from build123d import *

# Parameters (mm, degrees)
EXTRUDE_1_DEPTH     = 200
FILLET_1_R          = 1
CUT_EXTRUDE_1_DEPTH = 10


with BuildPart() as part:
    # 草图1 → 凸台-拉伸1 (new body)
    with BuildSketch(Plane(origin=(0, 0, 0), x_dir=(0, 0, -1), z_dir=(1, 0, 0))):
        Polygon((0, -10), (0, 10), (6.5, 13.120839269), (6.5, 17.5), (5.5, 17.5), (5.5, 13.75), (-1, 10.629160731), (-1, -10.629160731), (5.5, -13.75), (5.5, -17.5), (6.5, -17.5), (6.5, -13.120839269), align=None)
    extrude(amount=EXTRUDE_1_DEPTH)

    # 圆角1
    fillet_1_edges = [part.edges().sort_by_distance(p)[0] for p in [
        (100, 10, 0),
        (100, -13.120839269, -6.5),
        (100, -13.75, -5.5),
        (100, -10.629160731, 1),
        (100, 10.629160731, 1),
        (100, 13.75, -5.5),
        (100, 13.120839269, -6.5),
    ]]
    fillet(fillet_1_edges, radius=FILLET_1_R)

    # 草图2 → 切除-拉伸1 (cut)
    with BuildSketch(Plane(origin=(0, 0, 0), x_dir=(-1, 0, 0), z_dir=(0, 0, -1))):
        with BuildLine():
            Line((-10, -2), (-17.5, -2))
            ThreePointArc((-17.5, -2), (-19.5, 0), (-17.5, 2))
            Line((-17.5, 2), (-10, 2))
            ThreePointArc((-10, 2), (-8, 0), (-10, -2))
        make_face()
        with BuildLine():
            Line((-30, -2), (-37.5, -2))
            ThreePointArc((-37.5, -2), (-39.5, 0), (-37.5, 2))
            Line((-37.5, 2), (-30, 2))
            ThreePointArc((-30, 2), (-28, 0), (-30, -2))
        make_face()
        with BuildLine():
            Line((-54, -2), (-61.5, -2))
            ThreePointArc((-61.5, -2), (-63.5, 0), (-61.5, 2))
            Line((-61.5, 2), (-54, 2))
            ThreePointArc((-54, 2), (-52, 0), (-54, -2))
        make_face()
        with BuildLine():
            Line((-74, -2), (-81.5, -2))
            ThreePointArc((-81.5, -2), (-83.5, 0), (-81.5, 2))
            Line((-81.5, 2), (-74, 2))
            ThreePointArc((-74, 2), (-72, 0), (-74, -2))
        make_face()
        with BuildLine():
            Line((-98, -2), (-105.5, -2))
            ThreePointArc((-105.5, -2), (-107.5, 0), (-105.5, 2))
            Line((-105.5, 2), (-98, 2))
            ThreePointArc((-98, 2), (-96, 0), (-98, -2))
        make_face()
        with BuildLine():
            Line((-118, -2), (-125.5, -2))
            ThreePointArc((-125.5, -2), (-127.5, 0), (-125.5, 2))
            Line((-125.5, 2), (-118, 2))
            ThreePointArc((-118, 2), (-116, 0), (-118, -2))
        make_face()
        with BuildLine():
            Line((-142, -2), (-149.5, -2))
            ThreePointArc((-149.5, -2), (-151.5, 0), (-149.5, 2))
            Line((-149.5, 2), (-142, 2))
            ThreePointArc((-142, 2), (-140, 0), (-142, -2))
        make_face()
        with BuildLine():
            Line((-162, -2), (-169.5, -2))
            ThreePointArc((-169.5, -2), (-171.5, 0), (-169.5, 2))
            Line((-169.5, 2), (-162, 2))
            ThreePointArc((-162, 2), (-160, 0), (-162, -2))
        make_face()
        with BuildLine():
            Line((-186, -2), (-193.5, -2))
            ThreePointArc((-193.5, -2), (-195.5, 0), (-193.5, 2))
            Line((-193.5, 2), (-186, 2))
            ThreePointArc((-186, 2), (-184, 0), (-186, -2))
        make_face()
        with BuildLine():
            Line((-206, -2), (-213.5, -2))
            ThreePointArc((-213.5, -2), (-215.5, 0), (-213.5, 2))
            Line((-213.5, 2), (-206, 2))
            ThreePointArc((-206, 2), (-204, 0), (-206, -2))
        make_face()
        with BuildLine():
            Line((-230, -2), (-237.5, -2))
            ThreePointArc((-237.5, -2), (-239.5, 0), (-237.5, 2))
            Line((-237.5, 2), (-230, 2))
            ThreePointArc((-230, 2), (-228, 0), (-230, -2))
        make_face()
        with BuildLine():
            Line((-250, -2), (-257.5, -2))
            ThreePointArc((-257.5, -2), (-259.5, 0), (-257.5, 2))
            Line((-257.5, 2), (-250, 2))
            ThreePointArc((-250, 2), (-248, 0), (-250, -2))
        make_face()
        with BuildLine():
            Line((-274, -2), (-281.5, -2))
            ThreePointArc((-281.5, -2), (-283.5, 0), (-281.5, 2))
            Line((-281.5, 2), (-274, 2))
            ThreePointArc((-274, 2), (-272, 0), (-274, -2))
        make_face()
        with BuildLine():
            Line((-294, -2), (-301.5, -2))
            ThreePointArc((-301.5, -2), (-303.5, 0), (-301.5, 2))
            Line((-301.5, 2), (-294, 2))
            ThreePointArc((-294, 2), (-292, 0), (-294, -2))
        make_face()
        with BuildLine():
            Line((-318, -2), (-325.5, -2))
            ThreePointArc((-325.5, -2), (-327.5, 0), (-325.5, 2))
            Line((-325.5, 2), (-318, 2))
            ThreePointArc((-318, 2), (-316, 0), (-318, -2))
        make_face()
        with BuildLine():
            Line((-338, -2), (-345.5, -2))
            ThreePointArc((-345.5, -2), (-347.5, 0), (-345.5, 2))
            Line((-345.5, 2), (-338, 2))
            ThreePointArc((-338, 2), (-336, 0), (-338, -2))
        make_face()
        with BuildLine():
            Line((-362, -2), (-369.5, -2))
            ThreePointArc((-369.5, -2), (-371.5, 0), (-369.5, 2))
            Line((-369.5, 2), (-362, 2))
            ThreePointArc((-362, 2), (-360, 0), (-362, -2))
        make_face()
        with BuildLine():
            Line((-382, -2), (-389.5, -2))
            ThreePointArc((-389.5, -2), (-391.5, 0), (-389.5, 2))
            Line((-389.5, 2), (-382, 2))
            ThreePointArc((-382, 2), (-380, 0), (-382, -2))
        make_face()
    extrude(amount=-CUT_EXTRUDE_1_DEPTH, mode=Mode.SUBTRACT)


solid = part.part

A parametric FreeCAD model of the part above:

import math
import FreeCAD as App
import Part
import Sketcher

V = App.Vector
Q = App.Units.Quantity


def edges_at(feature, points):
    """Names of the edges that pass closest to the given points."""
    edges = feature.Shape.Edges
    near = lambda p: min(range(len(edges)), key=lambda i: edges[i].distToShape(Part.Vertex(*p))[0])
    return sorted({f"Edge{near(p) + 1}" for p in points})

doc = App.newDocument("Part")
params = doc.addObject("Spreadsheet::Sheet", "Params")
for row, (alias, value) in enumerate([
    ("sketch1_width", "20 mm"),
    ("sketch1_height", "1 mm"),
    ("sketch1_width2", "3.75 mm"),
    ("pad1_length", "200 mm"),
    ("fillet_radius", "1 mm"),
    ("sketch2_radius", "2 mm"),
    ("sketch2_width", "7.5 mm"),
    ("pocket1_length", "10 mm"),
], start=1):
    params.set(f"A{row}", alias)
    params.set(f"B{row}", "=" + value)
    params.setAlias(f"B{row}", alias)

body = doc.addObject("PartDesign::Body", "Body")

# Sketch on YZ plane
sketch1 = body.newObject("Sketcher::SketchObject", "Sketch")
sketch1.AttachmentSupport = (doc.getObject("YZ_Plane"), [""])
sketch1.MapMode = "FlatFace"
sketch1.addGeometry([
    Part.LineSegment(V(-10, 0, 0), V(10, 0, 0)),  # 0
    Part.LineSegment(V(10, 0, 0), V(13.1, -6.5, 0)),  # 1
    Part.LineSegment(V(13.1, -6.5, 0), V(17.5, -6.5, 0)),  # 2
    Part.LineSegment(V(17.5, -6.5, 0), V(17.5, -5.5, 0)),  # 3
    Part.LineSegment(V(17.5, -5.5, 0), V(13.8, -5.5, 0)),  # 4
    Part.LineSegment(V(13.8, -5.5, 0), V(10.6, 1, 0)),  # 5
    Part.LineSegment(V(10.6, 1, 0), V(-10.6, 1, 0)),  # 6
    Part.LineSegment(V(-10.6, 1, 0), V(-13.8, -5.5, 0)),  # 7
    Part.LineSegment(V(-13.8, -5.5, 0), V(-17.5, -5.5, 0)),  # 8
    Part.LineSegment(V(-17.5, -5.5, 0), V(-17.5, -6.5, 0)),  # 9
    Part.LineSegment(V(-17.5, -6.5, 0), V(-13.1, -6.5, 0)),  # 10
    Part.LineSegment(V(-13.1, -6.5, 0), V(-10, 0, 0)),  # 11
], False)
sketch1.addConstraint([
    Sketcher.Constraint("Coincident", 0, 2, 1, 1),
    Sketcher.Constraint("Coincident", 1, 2, 2, 1),
    Sketcher.Constraint("Coincident", 2, 2, 3, 1),
    Sketcher.Constraint("Coincident", 3, 2, 4, 1),
    Sketcher.Constraint("Coincident", 4, 2, 5, 1),
    Sketcher.Constraint("Coincident", 5, 2, 6, 1),
    Sketcher.Constraint("Coincident", 6, 2, 7, 1),
    Sketcher.Constraint("Coincident", 7, 2, 8, 1),
    Sketcher.Constraint("Coincident", 8, 2, 9, 1),
    Sketcher.Constraint("Coincident", 9, 2, 10, 1),
    Sketcher.Constraint("Coincident", 10, 2, 11, 1),
    Sketcher.Constraint("Coincident", 11, 2, 0, 1),
    Sketcher.Constraint("Horizontal", 0),
    Sketcher.Constraint("Horizontal", 2),
    Sketcher.Constraint("Vertical", 3),
    Sketcher.Constraint("Horizontal", 4),
    Sketcher.Constraint("Horizontal", 6),
    Sketcher.Constraint("Horizontal", 8),
    Sketcher.Constraint("Vertical", 9),
    Sketcher.Constraint("Horizontal", 10),
    Sketcher.Constraint("Symmetric", 0, 2, 11, 2, -1, 1),
    Sketcher.Constraint("Symmetric", 4, 2, 7, 2, -2),
    Sketcher.Constraint("Symmetric", 2, 2, 9, 2, -2),
    Sketcher.Constraint("Parallel", 1, 5),
    Sketcher.Constraint("Parallel", 7, 11),
    Sketcher.Constraint("Equal", 2, 10),
    Sketcher.Constraint("Equal", 1, 5),
    Sketcher.Constraint("DistanceX", 0, 1, 0, 2, Q("20 mm")),
    Sketcher.Constraint("DistanceY", 3, 1, 3, 2, Q("1 mm")),
    Sketcher.Constraint("DistanceX", 4, 2, 4, 1, Q("3.75 mm")),
    Sketcher.Constraint("DistanceY", 1, 2, -1, 1, Q("6.5 mm")),
    Sketcher.Constraint("DistanceX", -1, 1, 2, 2, Q("17.5 mm")),
    Sketcher.Constraint("DistanceX", 2, 1, 2, 2, Q("4.379161 mm")),
])
sketch1.setExpression("Constraints[27]", "Params.sketch1_width")
sketch1.setExpression("Constraints[28]", "Params.sketch1_height")
sketch1.setExpression("Constraints[29]", "Params.sketch1_width2")
pad1 = body.newObject("PartDesign::Pad", "Pad")
pad1.Profile = sketch1
pad1.setExpression("Length", "Params.pad1_length")
doc.recompute()

fillet = body.newObject("PartDesign::Fillet", "Fillet")
fillet.Base = (pad1, edges_at(pad1, [
    (100, 10, 0),
    (100, -13.121, -6.5),
    (100, -13.75, -5.5),
    (100, -10.629, 1),
    (100, 10.629, 1),
    (100, 13.75, -5.5),
    (100, 13.121, -6.5),
]))
fillet.setExpression("Radius", "Params.fillet_radius")

# Sketch on XY plane
sketch2 = body.newObject("Sketcher::SketchObject", "Sketch001")
sketch2.AttachmentSupport = (doc.getObject("XY_Plane"), [""])
sketch2.MapMode = "FlatFace"
sketch2.addGeometry([
    Part.LineSegment(V(17.5, -2, 0), V(10, -2, 0)),  # 0
    Part.ArcOfCircle(Part.Circle(V(10, 0, 0), V(0, 0, 1), 2), math.radians(90), math.radians(270)),  # 1
    Part.LineSegment(V(10, 2, 0), V(17.5, 2, 0)),  # 2
    Part.ArcOfCircle(Part.Circle(V(17.5, 0, 0), V(0, 0, 1), 2), math.radians(-90), math.radians(90)),  # 3
    Part.LineSegment(V(37.5, -2, 0), V(30, -2, 0)),  # 4
    Part.ArcOfCircle(Part.Circle(V(30, 0, 0), V(0, 0, 1), 2), math.radians(90), math.radians(270)),  # 5
    Part.LineSegment(V(30, 2, 0), V(37.5, 2, 0)),  # 6
    Part.ArcOfCircle(Part.Circle(V(37.5, 0, 0), V(0, 0, 1), 2), math.radians(-90), math.radians(90)),  # 7
    Part.LineSegment(V(61.5, -2, 0), V(54, -2, 0)),  # 8
    Part.ArcOfCircle(Part.Circle(V(54, 0, 0), V(0, 0, 1), 2), math.radians(90), math.radians(270)),  # 9
    Part.LineSegment(V(54, 2, 0), V(61.5, 2, 0)),  # 10
    Part.ArcOfCircle(Part.Circle(V(61.5, 0, 0), V(0, 0, 1), 2), math.radians(-90), math.radians(90)),  # 11
    Part.LineSegment(V(81.5, -2, 0), V(74, -2, 0)),  # 12
    Part.ArcOfCircle(Part.Circle(V(74, 0, 0), V(0, 0, 1), 2), math.radians(90), math.radians(270)),  # 13
    Part.LineSegment(V(74, 2, 0), V(81.5, 2, 0)),  # 14
    Part.ArcOfCircle(Part.Circle(V(81.5, 0, 0), V(0, 0, 1), 2), math.radians(-90), math.radians(90)),  # 15
    Part.LineSegment(V(105.5, -2, 0), V(98, -2, 0)),  # 16
    Part.ArcOfCircle(Part.Circle(V(98, 0, 0), V(0, 0, 1), 2), math.radians(90), math.radians(270)),  # 17
    Part.LineSegment(V(98, 2, 0), V(105.5, 2, 0)),  # 18
    Part.ArcOfCircle(Part.Circle(V(105.5, 0, 0), V(0, 0, 1), 2), math.radians(-90), math.radians(90)),  # 19
    Part.LineSegment(V(125.5, -2, 0), V(118, -2, 0)),  # 20
    Part.ArcOfCircle(Part.Circle(V(118, 0, 0), V(0, 0, 1), 2), math.radians(90), math.radians(270)),  # 21
    Part.LineSegment(V(118, 2, 0), V(125.5, 2, 0)),  # 22
    Part.ArcOfCircle(Part.Circle(V(125.5, 0, 0), V(0, 0, 1), 2), math.radians(-90), math.radians(90)),  # 23
    Part.LineSegment(V(149.5, -2, 0), V(142, -2, 0)),  # 24
    Part.ArcOfCircle(Part.Circle(V(142, 0, 0), V(0, 0, 1), 2), math.radians(90), math.radians(270)),  # 25
    Part.LineSegment(V(142, 2, 0), V(149.5, 2, 0)),  # 26
    Part.ArcOfCircle(Part.Circle(V(149.5, 0, 0), V(0, 0, 1), 2), math.radians(-90), math.radians(90)),  # 27
    Part.LineSegment(V(169.5, -2, 0), V(162, -2, 0)),  # 28
    Part.ArcOfCircle(Part.Circle(V(162, 0, 0), V(0, 0, 1), 2), math.radians(90), math.radians(270)),  # 29
    Part.LineSegment(V(162, 2, 0), V(169.5, 2, 0)),  # 30
    Part.ArcOfCircle(Part.Circle(V(169.5, 0, 0), V(0, 0, 1), 2), math.radians(-90), math.radians(90)),  # 31
    Part.LineSegment(V(193.5, -2, 0), V(186, -2, 0)),  # 32
    Part.ArcOfCircle(Part.Circle(V(186, 0, 0), V(0, 0, 1), 2), math.radians(90), math.radians(270)),  # 33
    Part.LineSegment(V(186, 2, 0), V(193.5, 2, 0)),  # 34
    Part.ArcOfCircle(Part.Circle(V(193.5, 0, 0), V(0, 0, 1), 2), math.radians(-90), math.radians(90)),  # 35
    Part.LineSegment(V(213.5, -2, 0), V(206, -2, 0)),  # 36
    Part.ArcOfCircle(Part.Circle(V(206, 0, 0), V(0, 0, 1), 2), math.radians(90), math.radians(270)),  # 37
    Part.LineSegment(V(206, 2, 0), V(213.5, 2, 0)),  # 38
    Part.ArcOfCircle(Part.Circle(V(213.5, 0, 0), V(0, 0, 1), 2), math.radians(-90), math.radians(90)),  # 39
    Part.LineSegment(V(237.5, -2, 0), V(230, -2, 0)),  # 40
    Part.ArcOfCircle(Part.Circle(V(230, 0, 0), V(0, 0, 1), 2), math.radians(90), math.radians(270)),  # 41
    Part.LineSegment(V(230, 2, 0), V(237.5, 2, 0)),  # 42
    Part.ArcOfCircle(Part.Circle(V(237.5, 0, 0), V(0, 0, 1), 2), math.radians(-90), math.radians(90)),  # 43
    Part.LineSegment(V(257.5, -2, 0), V(250, -2, 0)),  # 44
    Part.ArcOfCircle(Part.Circle(V(250, 0, 0), V(0, 0, 1), 2), math.radians(90), math.radians(270)),  # 45
    Part.LineSegment(V(250, 2, 0), V(257.5, 2, 0)),  # 46
    Part.ArcOfCircle(Part.Circle(V(257.5, 0, 0), V(0, 0, 1), 2), math.radians(-90), math.radians(90)),  # 47
    Part.LineSegment(V(281.5, -2, 0), V(274, -2, 0)),  # 48
    Part.ArcOfCircle(Part.Circle(V(274, 0, 0), V(0, 0, 1), 2), math.radians(90), math.radians(270)),  # 49
    Part.LineSegment(V(274, 2, 0), V(281.5, 2, 0)),  # 50
    Part.ArcOfCircle(Part.Circle(V(281.5, 0, 0), V(0, 0, 1), 2), math.radians(-90), math.radians(90)),  # 51
    Part.LineSegment(V(301.5, -2, 0), V(294, -2, 0)),  # 52
    Part.ArcOfCircle(Part.Circle(V(294, 0, 0), V(0, 0, 1), 2), math.radians(90), math.radians(270)),  # 53
    Part.LineSegment(V(294, 2, 0), V(301.5, 2, 0)),  # 54
    Part.ArcOfCircle(Part.Circle(V(301.5, 0, 0), V(0, 0, 1), 2), math.radians(-90), math.radians(90)),  # 55
    Part.LineSegment(V(325.5, -2, 0), V(318, -2, 0)),  # 56
    Part.ArcOfCircle(Part.Circle(V(318, 0, 0), V(0, 0, 1), 2), math.radians(90), math.radians(270)),  # 57
    Part.LineSegment(V(318, 2, 0), V(325.5, 2, 0)),  # 58
    Part.ArcOfCircle(Part.Circle(V(325.5, 0, 0), V(0, 0, 1), 2), math.radians(-90), math.radians(90)),  # 59
    Part.LineSegment(V(345.5, -2, 0), V(338, -2, 0)),  # 60
    Part.ArcOfCircle(Part.Circle(V(338, 0, 0), V(0, 0, 1), 2), math.radians(90), math.radians(270)),  # 61
    Part.LineSegment(V(338, 2, 0), V(345.5, 2, 0)),  # 62
    Part.ArcOfCircle(Part.Circle(V(345.5, 0, 0), V(0, 0, 1), 2), math.radians(-90), math.radians(90)),  # 63
    Part.LineSegment(V(369.5, -2, 0), V(362, -2, 0)),  # 64
    Part.ArcOfCircle(Part.Circle(V(362, 0, 0), V(0, 0, 1), 2), math.radians(90), math.radians(270)),  # 65
    Part.LineSegment(V(362, 2, 0), V(369.5, 2, 0)),  # 66
    Part.ArcOfCircle(Part.Circle(V(369.5, 0, 0), V(0, 0, 1), 2), math.radians(-90), math.radians(90)),  # 67
    Part.LineSegment(V(389.5, -2, 0), V(382, -2, 0)),  # 68
    Part.ArcOfCircle(Part.Circle(V(382, 0, 0), V(0, 0, 1), 2), math.radians(90), math.radians(270)),  # 69
    Part.LineSegment(V(382, 2, 0), V(389.5, 2, 0)),  # 70
    Part.ArcOfCircle(Part.Circle(V(389.5, 0, 0), V(0, 0, 1), 2), math.radians(-90), math.radians(90)),  # 71
], False)
sketch2.addConstraint([
    Sketcher.Constraint("Tangent", 0, 2, 1, 2),
    Sketcher.Constraint("Tangent", 1, 1, 2, 1),
    Sketcher.Constraint("Tangent", 2, 2, 3, 2),
    Sketcher.Constraint("Tangent", 3, 1, 0, 1),
    Sketcher.Constraint("Tangent", 4, 2, 5, 2),
    Sketcher.Constraint("Tangent", 5, 1, 6, 1),
    Sketcher.Constraint("Tangent", 6, 2, 7, 2),
    Sketcher.Constraint("Tangent", 7, 1, 4, 1),
    Sketcher.Constraint("Tangent", 8, 2, 9, 2),
    Sketcher.Constraint("Tangent", 9, 1, 10, 1),
    Sketcher.Constraint("Tangent", 10, 2, 11, 2),
    Sketcher.Constraint("Tangent", 11, 1, 8, 1),
    Sketcher.Constraint("Tangent", 12, 2, 13, 2),
    Sketcher.Constraint("Tangent", 13, 1, 14, 1),
    Sketcher.Constraint("Tangent", 14, 2, 15, 2),
    Sketcher.Constraint("Tangent", 15, 1, 12, 1),
    Sketcher.Constraint("Tangent", 16, 2, 17, 2),
    Sketcher.Constraint("Tangent", 17, 1, 18, 1),
    Sketcher.Constraint("Tangent", 18, 2, 19, 2),
    Sketcher.Constraint("Tangent", 19, 1, 16, 1),
    Sketcher.Constraint("Tangent", 20, 2, 21, 2),
    Sketcher.Constraint("Tangent", 21, 1, 22, 1),
    Sketcher.Constraint("Tangent", 22, 2, 23, 2),
    Sketcher.Constraint("Tangent", 23, 1, 20, 1),
    Sketcher.Constraint("Tangent", 24, 2, 25, 2),
    Sketcher.Constraint("Tangent", 25, 1, 26, 1),
    Sketcher.Constraint("Tangent", 26, 2, 27, 2),
    Sketcher.Constraint("Tangent", 27, 1, 24, 1),
    Sketcher.Constraint("Tangent", 28, 2, 29, 2),
    Sketcher.Constraint("Tangent", 29, 1, 30, 1),
    Sketcher.Constraint("Tangent", 30, 2, 31, 2),
    Sketcher.Constraint("Tangent", 31, 1, 28, 1),
    Sketcher.Constraint("Tangent", 32, 2, 33, 2),
    Sketcher.Constraint("Tangent", 33, 1, 34, 1),
    Sketcher.Constraint("Tangent", 34, 2, 35, 2),
    Sketcher.Constraint("Tangent", 35, 1, 32, 1),
    Sketcher.Constraint("Tangent", 36, 2, 37, 2),
    Sketcher.Constraint("Tangent", 37, 1, 38, 1),
    Sketcher.Constraint("Tangent", 38, 2, 39, 2),
    Sketcher.Constraint("Tangent", 39, 1, 36, 1),
    Sketcher.Constraint("Tangent", 40, 2, 41, 2),
    Sketcher.Constraint("Tangent", 41, 1, 42, 1),
    Sketcher.Constraint("Tangent", 42, 2, 43, 2),
    Sketcher.Constraint("Tangent", 43, 1, 40, 1),
    Sketcher.Constraint("Tangent", 44, 2, 45, 2),
    Sketcher.Constraint("Tangent", 45, 1, 46, 1),
    Sketcher.Constraint("Tangent", 46, 2, 47, 2),
    Sketcher.Constraint("Tangent", 47, 1, 44, 1),
    Sketcher.Constraint("Tangent", 48, 2, 49, 2),
    Sketcher.Constraint("Tangent", 49, 1, 50, 1),
    Sketcher.Constraint("Tangent", 50, 2, 51, 2),
    Sketcher.Constraint("Tangent", 51, 1, 48, 1),
    Sketcher.Constraint("Tangent", 52, 2, 53, 2),
    Sketcher.Constraint("Tangent", 53, 1, 54, 1),
    Sketcher.Constraint("Tangent", 54, 2, 55, 2),
    Sketcher.Constraint("Tangent", 55, 1, 52, 1),
    Sketcher.Constraint("Tangent", 56, 2, 57, 2),
    Sketcher.Constraint("Tangent", 57, 1, 58, 1),
    Sketcher.Constraint("Tangent", 58, 2, 59, 2),
    Sketcher.Constraint("Tangent", 59, 1, 56, 1),
    Sketcher.Constraint("Tangent", 60, 2, 61, 2),
    Sketcher.Constraint("Tangent", 61, 1, 62, 1),
    Sketcher.Constraint("Tangent", 62, 2, 63, 2),
    Sketcher.Constraint("Tangent", 63, 1, 60, 1),
    Sketcher.Constraint("Tangent", 64, 2, 65, 2),
    Sketcher.Constraint("Tangent", 65, 1, 66, 1),
    Sketcher.Constraint("Tangent", 66, 2, 67, 2),
    Sketcher.Constraint("Tangent", 67, 1, 64, 1),
    Sketcher.Constraint("Tangent", 68, 2, 69, 2),
    Sketcher.Constraint("Tangent", 69, 1, 70, 1),
    Sketcher.Constraint("Tangent", 70, 2, 71, 2),
    Sketcher.Constraint("Tangent", 71, 1, 68, 1),
    Sketcher.Constraint("Horizontal", 0),
    Sketcher.Constraint("Horizontal", 2),
    Sketcher.Constraint("Horizontal", 4),
    Sketcher.Constraint("Horizontal", 6),
    Sketcher.Constraint("Horizontal", 8),
    Sketcher.Constraint("Horizontal", 10),
    Sketcher.Constraint("Horizontal", 12),
    Sketcher.Constraint("Horizontal", 14),
    Sketcher.Constraint("Horizontal", 16),
    Sketcher.Constraint("Horizontal", 18),
    Sketcher.Constraint("Horizontal", 20),
    Sketcher.Constraint("Horizontal", 22),
    Sketcher.Constraint("Horizontal", 24),
    Sketcher.Constraint("Horizontal", 26),
    Sketcher.Constraint("Horizontal", 28),
    Sketcher.Constraint("Horizontal", 30),
    Sketcher.Constraint("Horizontal", 32),
    Sketcher.Constraint("Horizontal", 34),
    Sketcher.Constraint("Horizontal", 36),
    Sketcher.Constraint("Horizontal", 38),
    Sketcher.Constraint("Horizontal", 40),
    Sketcher.Constraint("Horizontal", 42),
    Sketcher.Constraint("Horizontal", 44),
    Sketcher.Constraint("Horizontal", 46),
    Sketcher.Constraint("Horizontal", 48),
    Sketcher.Constraint("Horizontal", 50),
    Sketcher.Constraint("Horizontal", 52),
    Sketcher.Constraint("Horizontal", 54),
    Sketcher.Constraint("Horizontal", 56),
    Sketcher.Constraint("Horizontal", 58),
    Sketcher.Constraint("Horizontal", 60),
    Sketcher.Constraint("Horizontal", 62),
    Sketcher.Constraint("Horizontal", 64),
    Sketcher.Constraint("Horizontal", 66),
    Sketcher.Constraint("Horizontal", 68),
    Sketcher.Constraint("Horizontal", 70),
    Sketcher.Constraint("Equal", 3, 5),
    Sketcher.Constraint("Equal", 7, 9),
    Sketcher.Constraint("Equal", 11, 13),
    Sketcher.Constraint("Equal", 15, 17),
    Sketcher.Constraint("Equal", 19, 21),
    Sketcher.Constraint("Equal", 23, 25),
    Sketcher.Constraint("Equal", 27, 29),
    Sketcher.Constraint("Equal", 31, 33),
    Sketcher.Constraint("Equal", 35, 37),
    Sketcher.Constraint("Equal", 39, 41),
    Sketcher.Constraint("Equal", 43, 45),
    Sketcher.Constraint("Equal", 47, 49),
    Sketcher.Constraint("Equal", 51, 53),
    Sketcher.Constraint("Equal", 55, 57),
    Sketcher.Constraint("Equal", 59, 61),
    Sketcher.Constraint("Equal", 63, 65),
    Sketcher.Constraint("Equal", 67, 69),
    Sketcher.Constraint("PointOnObject", 1, 3, -1),
    Sketcher.Constraint("PointOnObject", 5, 3, -1),
    Sketcher.Constraint("PointOnObject", 9, 3, -1),
    Sketcher.Constraint("PointOnObject", 13, 3, -1),
    Sketcher.Constraint("PointOnObject", 17, 3, -1),
    Sketcher.Constraint("PointOnObject", 21, 3, -1),
    Sketcher.Constraint("PointOnObject", 25, 3, -1),
    Sketcher.Constraint("PointOnObject", 29, 3, -1),
    Sketcher.Constraint("PointOnObject", 33, 3, -1),
    Sketcher.Constraint("PointOnObject", 37, 3, -1),
    Sketcher.Constraint("PointOnObject", 41, 3, -1),
    Sketcher.Constraint("PointOnObject", 45, 3, -1),
    Sketcher.Constraint("PointOnObject", 49, 3, -1),
    Sketcher.Constraint("PointOnObject", 53, 3, -1),
    Sketcher.Constraint("PointOnObject", 57, 3, -1),
    Sketcher.Constraint("PointOnObject", 61, 3, -1),
    Sketcher.Constraint("PointOnObject", 65, 3, -1),
    Sketcher.Constraint("PointOnObject", 69, 3, -1),
    Sketcher.Constraint("Equal", 2, 4),
    Sketcher.Constraint("Equal", 6, 8),
    Sketcher.Constraint("Equal", 10, 12),
    Sketcher.Constraint("Equal", 14, 16),
    Sketcher.Constraint("Equal", 18, 20),
    Sketcher.Constraint("Equal", 22, 24),
    Sketcher.Constraint("Equal", 26, 28),
    Sketcher.Constraint("Equal", 30, 32),
    Sketcher.Constraint("Equal", 34, 36),
    Sketcher.Constraint("Equal", 38, 40),
    Sketcher.Constraint("Equal", 42, 44),
    Sketcher.Constraint("Equal", 46, 48),
    Sketcher.Constraint("Equal", 50, 52),
    Sketcher.Constraint("Equal", 54, 56),
    Sketcher.Constraint("Equal", 58, 60),
    Sketcher.Constraint("Equal", 62, 64),
    Sketcher.Constraint("Equal", 66, 68),
    Sketcher.Constraint("Radius", 1, Q("2 mm")),
    Sketcher.Constraint("DistanceX", 0, 2, 0, 1, Q("7.5 mm")),
    Sketcher.Constraint("DistanceX", -1, 1, 1, 3, Q("10 mm")),
    Sketcher.Constraint("DistanceX", -1, 1, 5, 3, Q("30 mm")),
    Sketcher.Constraint("DistanceX", -1, 1, 9, 3, Q("54 mm")),
    Sketcher.Constraint("DistanceX", -1, 1, 13, 3, Q("74 mm")),
    Sketcher.Constraint("DistanceX", -1, 1, 17, 3, Q("98 mm")),
    Sketcher.Constraint("DistanceX", -1, 1, 21, 3, Q("118 mm")),
    Sketcher.Constraint("DistanceX", -1, 1, 25, 3, Q("142 mm")),
    Sketcher.Constraint("DistanceX", -1, 1, 29, 3, Q("162 mm")),
    Sketcher.Constraint("DistanceX", -1, 1, 33, 3, Q("186 mm")),
    Sketcher.Constraint("DistanceX", -1, 1, 37, 3, Q("206 mm")),
    Sketcher.Constraint("DistanceX", -1, 1, 41, 3, Q("230 mm")),
    Sketcher.Constraint("DistanceX", -1, 1, 45, 3, Q("250 mm")),
    Sketcher.Constraint("DistanceX", -1, 1, 49, 3, Q("274 mm")),
    Sketcher.Constraint("DistanceX", -1, 1, 53, 3, Q("294 mm")),
    Sketcher.Constraint("DistanceX", -1, 1, 57, 3, Q("318 mm")),
    Sketcher.Constraint("DistanceX", -1, 1, 61, 3, Q("338 mm")),
    Sketcher.Constraint("DistanceX", -1, 1, 65, 3, Q("362 mm")),
    Sketcher.Constraint("DistanceX", -1, 1, 69, 3, Q("382 mm")),
])
sketch2.setExpression("Constraints[160]", "Params.sketch2_radius")
sketch2.setExpression("Constraints[161]", "Params.sketch2_width")
pocket1 = body.newObject("PartDesign::Pocket", "Pocket")
pocket1.Profile = sketch2
pocket1.setExpression("Length", "Params.pocket1_length")
pocket1.Reversed = True

doc.recompute()
